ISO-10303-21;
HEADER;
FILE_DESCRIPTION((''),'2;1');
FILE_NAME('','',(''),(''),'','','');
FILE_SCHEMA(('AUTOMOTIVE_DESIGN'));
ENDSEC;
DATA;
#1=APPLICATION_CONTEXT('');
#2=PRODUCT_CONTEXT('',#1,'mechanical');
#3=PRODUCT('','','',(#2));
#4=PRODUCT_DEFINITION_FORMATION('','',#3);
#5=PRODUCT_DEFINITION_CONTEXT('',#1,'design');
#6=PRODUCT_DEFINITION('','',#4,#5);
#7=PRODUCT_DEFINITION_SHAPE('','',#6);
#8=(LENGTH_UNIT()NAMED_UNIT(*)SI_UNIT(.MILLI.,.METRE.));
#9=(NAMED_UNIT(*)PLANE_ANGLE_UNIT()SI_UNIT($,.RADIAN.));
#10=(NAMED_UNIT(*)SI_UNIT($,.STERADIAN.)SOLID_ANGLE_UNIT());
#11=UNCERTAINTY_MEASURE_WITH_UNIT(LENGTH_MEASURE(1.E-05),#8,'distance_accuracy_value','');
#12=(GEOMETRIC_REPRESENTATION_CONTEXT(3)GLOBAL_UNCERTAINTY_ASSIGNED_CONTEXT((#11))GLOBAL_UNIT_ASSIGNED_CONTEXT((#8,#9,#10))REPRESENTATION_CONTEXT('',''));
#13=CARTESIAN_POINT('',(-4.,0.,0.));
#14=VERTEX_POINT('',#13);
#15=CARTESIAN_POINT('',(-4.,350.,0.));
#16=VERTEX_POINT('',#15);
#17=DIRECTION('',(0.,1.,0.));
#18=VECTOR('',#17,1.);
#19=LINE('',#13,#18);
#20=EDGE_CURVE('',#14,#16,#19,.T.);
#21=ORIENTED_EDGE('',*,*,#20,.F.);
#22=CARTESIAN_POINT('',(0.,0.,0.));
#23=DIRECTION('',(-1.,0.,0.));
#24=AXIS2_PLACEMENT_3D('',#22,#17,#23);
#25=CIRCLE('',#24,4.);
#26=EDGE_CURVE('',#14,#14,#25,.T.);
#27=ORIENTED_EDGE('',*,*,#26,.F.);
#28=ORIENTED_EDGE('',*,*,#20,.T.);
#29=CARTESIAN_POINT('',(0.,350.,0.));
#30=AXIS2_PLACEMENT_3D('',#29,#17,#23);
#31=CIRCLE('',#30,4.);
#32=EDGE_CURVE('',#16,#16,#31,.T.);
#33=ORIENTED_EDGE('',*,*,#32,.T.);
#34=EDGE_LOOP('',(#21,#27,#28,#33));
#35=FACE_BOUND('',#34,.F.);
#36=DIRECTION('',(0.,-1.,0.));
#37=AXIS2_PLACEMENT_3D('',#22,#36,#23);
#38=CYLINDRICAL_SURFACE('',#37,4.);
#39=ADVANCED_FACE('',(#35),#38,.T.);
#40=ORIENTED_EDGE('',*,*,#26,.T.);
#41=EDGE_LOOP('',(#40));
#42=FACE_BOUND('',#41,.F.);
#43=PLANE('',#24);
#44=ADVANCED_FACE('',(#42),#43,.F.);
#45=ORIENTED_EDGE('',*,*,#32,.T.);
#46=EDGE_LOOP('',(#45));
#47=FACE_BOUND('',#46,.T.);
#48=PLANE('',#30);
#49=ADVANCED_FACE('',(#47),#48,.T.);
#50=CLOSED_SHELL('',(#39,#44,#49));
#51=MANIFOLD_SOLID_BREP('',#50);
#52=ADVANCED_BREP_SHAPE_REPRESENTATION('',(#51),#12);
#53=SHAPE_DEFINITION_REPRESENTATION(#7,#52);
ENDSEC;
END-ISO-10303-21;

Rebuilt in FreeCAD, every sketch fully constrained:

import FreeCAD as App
import Part
import Sketcher

V = App.Vector
Q = App.Units.Quantity

doc = App.newDocument("Part")
body = doc.addObject("PartDesign::Body", "Body")

sketch1 = body.newObject("Sketcher::SketchObject", "Sketch")
sketch1.AttachmentSupport = (doc.getObject("XZ_Plane"), [""])
sketch1.MapMode = "FlatFace"
sketch1.addGeometry(Part.Circle(V(0, 0, 0), V(0, 0, 1), 4), False)
sketch1.addConstraint([
    Sketcher.Constraint("Coincident", 0, 3, -1, 1),
    Sketcher.Constraint("Diameter", 0, Q("8 mm")),
])
pad1 = body.newObject("PartDesign::Pad", "Pad")
pad1.Profile = sketch1
pad1.Length = 350
pad1.Reversed = True

doc.recompute()
